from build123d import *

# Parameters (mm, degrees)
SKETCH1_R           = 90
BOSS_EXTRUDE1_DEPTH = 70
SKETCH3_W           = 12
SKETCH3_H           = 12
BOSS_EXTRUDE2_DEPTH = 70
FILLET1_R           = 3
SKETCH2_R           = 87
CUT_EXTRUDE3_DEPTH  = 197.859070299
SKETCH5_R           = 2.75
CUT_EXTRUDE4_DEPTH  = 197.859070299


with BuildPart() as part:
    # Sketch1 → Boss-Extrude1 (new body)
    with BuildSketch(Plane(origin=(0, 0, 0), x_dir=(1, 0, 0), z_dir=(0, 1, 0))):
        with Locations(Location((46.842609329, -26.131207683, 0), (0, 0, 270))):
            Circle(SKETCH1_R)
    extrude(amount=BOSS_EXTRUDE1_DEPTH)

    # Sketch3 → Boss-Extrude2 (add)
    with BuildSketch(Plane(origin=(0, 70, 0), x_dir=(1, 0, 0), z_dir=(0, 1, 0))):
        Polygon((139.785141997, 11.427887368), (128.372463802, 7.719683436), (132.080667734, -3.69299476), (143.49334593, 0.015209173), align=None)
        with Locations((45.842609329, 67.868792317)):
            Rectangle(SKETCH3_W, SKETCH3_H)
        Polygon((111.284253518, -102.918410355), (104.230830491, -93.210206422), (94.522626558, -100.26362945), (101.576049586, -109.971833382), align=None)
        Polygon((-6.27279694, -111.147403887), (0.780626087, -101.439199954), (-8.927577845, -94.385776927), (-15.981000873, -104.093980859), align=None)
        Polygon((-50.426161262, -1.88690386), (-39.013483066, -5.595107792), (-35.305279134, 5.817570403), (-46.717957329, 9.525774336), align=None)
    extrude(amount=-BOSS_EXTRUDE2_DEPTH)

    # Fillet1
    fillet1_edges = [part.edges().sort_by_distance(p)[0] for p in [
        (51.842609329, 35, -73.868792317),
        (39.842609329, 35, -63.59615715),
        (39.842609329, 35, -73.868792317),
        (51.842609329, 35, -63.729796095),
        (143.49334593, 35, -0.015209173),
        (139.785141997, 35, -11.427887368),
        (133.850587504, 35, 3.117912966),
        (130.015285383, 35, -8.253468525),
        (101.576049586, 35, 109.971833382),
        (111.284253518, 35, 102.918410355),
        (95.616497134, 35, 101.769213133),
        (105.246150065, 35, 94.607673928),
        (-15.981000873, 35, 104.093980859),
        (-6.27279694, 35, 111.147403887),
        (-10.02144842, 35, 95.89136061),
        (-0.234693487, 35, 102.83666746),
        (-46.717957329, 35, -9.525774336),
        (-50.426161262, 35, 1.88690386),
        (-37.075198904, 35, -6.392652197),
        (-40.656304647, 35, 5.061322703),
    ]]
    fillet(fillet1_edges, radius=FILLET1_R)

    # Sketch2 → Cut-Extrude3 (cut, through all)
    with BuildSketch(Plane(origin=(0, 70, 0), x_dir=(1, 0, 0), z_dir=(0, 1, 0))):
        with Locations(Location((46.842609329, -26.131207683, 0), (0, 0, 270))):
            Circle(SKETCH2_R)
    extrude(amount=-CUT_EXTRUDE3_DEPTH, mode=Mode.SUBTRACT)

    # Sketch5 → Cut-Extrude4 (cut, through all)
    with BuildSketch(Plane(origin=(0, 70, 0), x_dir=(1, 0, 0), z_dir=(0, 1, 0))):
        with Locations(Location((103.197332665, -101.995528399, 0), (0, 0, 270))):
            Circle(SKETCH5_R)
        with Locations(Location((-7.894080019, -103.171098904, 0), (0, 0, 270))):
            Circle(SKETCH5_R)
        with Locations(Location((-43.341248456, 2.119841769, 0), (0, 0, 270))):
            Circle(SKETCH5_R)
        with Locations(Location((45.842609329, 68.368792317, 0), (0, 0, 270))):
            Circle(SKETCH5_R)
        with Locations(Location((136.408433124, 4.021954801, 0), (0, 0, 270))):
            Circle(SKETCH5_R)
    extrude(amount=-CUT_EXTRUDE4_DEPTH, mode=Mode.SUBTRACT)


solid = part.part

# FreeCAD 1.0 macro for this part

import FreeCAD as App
import Part
import Sketcher
from FreeCAD import Vector
Q = App.Units.Quantity


def edges_at(feature, points):
    """Names of the edges that pass closest to the given points."""
    edges = feature.Shape.Edges
    near = lambda p: min(range(len(edges)), key=lambda i: edges[i].distToShape(Part.Vertex(*p))[0])
    return sorted({f"Edge{near(p) + 1}" for p in points})


def add_polygon(sketch, points):
    """Adds a closed chain of lines whose ends are joined by coincident constraints."""
    first, n = sketch.GeometryCount, len(points)
    for a, b in zip(points, points[1:] + points[:1]):
        sketch.addGeometry(Part.LineSegment(App.Vector(*a, 0), App.Vector(*b, 0)), False)
    for i in range(n):
        sketch.addConstraint(Sketcher.Constraint("Coincident", first + i, 2, first + (i + 1) % n, 1))

doc = App.newDocument("Part")
body = doc.addObject("PartDesign::Body", "Body")

# Sketch on XZ plane
sketch1 = doc.addObject("Sketcher::SketchObject", "Sketch")
body.addObject(sketch1)
sketch1.AttachmentSupport = (doc.XZ_Plane, [""])
sketch1.MapMode = "FlatFace"
sketch1.addGeometry(Part.Circle(Vector(47, 26, 0), Vector(0, 0, 1), 90), False)
sketch1.addConstraint([
    Sketcher.Constraint("Diameter", 0, Q("180 mm")),
    Sketcher.Constraint("DistanceX", -1, 1, 0, 3, Q("46.842609 mm")),
    Sketcher.Constraint("DistanceY", -1, 1, 0, 3, Q("26.131208 mm")),
])
pad1 = doc.addObject("PartDesign::Pad", "Pad")
body.addObject(pad1)
pad1.Profile = sketch1
pad1.Length = 70
pad1.Reversed = True

# Sketch on XZ plane
sketch2 = doc.addObject("Sketcher::SketchObject", "Sketch001")
body.addObject(sketch2)
sketch2.AttachmentSupport = (doc.XZ_Plane, [""])
sketch2.MapMode = "FlatFace"
sketch2.AttachmentOffset = App.Placement(Vector(0, 0, -70), App.Rotation())
add_polygon(sketch2, [(140, -11), (128, -8), (132, 4), (143, 0)])  # lines 0-3
add_polygon(sketch2, [(40, -74), (40, -62), (52, -62), (52, -74)])  # lines 4-7
add_polygon(sketch2, [(111, 103), (104, 93), (95, 100), (102, 110)])  # lines 8-11
add_polygon(sketch2, [(-6, 111), (1, 101), (-9, 94), (-16, 104)])  # lines 12-15
add_polygon(sketch2, [(-50, 2), (-39, 6), (-35, -6), (-47, -10)])  # lines 16-19
sketch2.addConstraint([
    Sketcher.Constraint("Vertical", 4),
    Sketcher.Constraint("Horizontal", 5),
    Sketcher.Constraint("Vertical", 6),
    Sketcher.Constraint("Horizontal", 7),
    Sketcher.Constraint("Perpendicular", 0, 1),
    Sketcher.Constraint("Perpendicular", 1, 2),
    Sketcher.Constraint("Perpendicular", 2, 3),
    Sketcher.Constraint("Perpendicular", 8, 9),
    Sketcher.Constraint("Perpendicular", 9, 10),
    Sketcher.Constraint("Perpendicular", 10, 11),
    Sketcher.Constraint("Perpendicular", 12, 13),
    Sketcher.Constraint("Perpendicular", 13, 14),
    Sketcher.Constraint("Perpendicular", 14, 15),
    Sketcher.Constraint("Perpendicular", 16, 17),
    Sketcher.Constraint("Perpendicular", 17, 18),
    Sketcher.Constraint("Perpendicular", 18, 19),
    Sketcher.Constraint("Equal", 7, 4),
    Sketcher.Constraint("Equal", 0, 1),
    Sketcher.Constraint("Equal", 3, 8),
    Sketcher.Constraint("Equal", 8, 9),
    Sketcher.Constraint("Equal", 11, 12),
    Sketcher.Constraint("Equal", 12, 13),
    Sketcher.Constraint("Equal", 15, 16),
    Sketcher.Constraint("Equal", 16, 17),
    Sketcher.Constraint("DistanceX", 5, 1, 5, 2, Q("12 mm")),
    Sketcher.Constraint("Angle", 0, Q("162 deg")),
    Sketcher.Constraint("Angle", 8, Q("-126 deg")),
    Sketcher.Constraint("Angle", 12, Q("-54 deg")),
    Sketcher.Constraint("Angle", 16, Q("18 deg")),
    Sketcher.Constraint("Distance", 0, Q("12 mm")),
    Sketcher.Constraint("DistanceX", 14, 2, -1, 1, Q("15.981001 mm")),
    Sketcher.Constraint("DistanceY", 5, 2, 8, 2, Q("155.078999 mm")),
    Sketcher.Constraint("DistanceX", 12, 2, 9, 2, Q("93.742 mm")),
    Sketcher.Constraint("DistanceY", -1, 1, 12, 2, Q("101.4392 mm")),
    Sketcher.Constraint("DistanceY", 4, 2, 16, 2, Q("67.4639 mm")),
    Sketcher.Constraint("DistanceX", 17, 2, 13, 2, Q("26.377701 mm")),
    Sketcher.Constraint("DistanceY", 2, 2, -1, 1, Q("0.015209 mm")),
    Sketcher.Constraint("DistanceX", -1, 1, 3, 2, Q("139.785142 mm")),
    Sketcher.Constraint("DistanceX", -1, 1, 4, 2, Q("39.842609 mm")),
    Sketcher.Constraint("DistanceY", -1, 1, 9, 2, Q("100.263629 mm")),
])
pad2 = doc.addObject("PartDesign::Pad", "Pad001")
body.addObject(pad2)
pad2.Profile = sketch2
pad2.Length = 70
doc.recompute()

fillet = doc.addObject("PartDesign::Fillet", "Fillet")
body.addObject(fillet)
fillet.Base = (pad2, edges_at(pad2, [
    (51.843, 35, -73.869),
    (39.843, 35, -63.596),
    (39.843, 35, -73.869),
    (51.843, 35, -63.73),
    (143.493, 35, -0.015),
    (139.785, 35, -11.428),
    (133.851, 35, 3.118),
    (130.015, 35, -8.253),
    (101.576, 35, 109.972),
    (111.284, 35, 102.918),
    (95.616, 35, 101.769),
    (105.246, 35, 94.608),
    (-15.981, 35, 104.094),
    (-6.273, 35, 111.147),
    (-10.021, 35, 95.891),
    (-0.235, 35, 102.837),
    (-46.718, 35, -9.526),
    (-50.426, 35, 1.887),
    (-37.075, 35, -6.393),
    (-40.656, 35, 5.061),
]))
fillet.Radius = 3

# Sketch on XZ plane
sketch3 = doc.addObject("Sketcher::SketchObject", "Sketch002")
body.addObject(sketch3)
sketch3.AttachmentSupport = (doc.XZ_Plane, [""])
sketch3.MapMode = "FlatFace"
sketch3.AttachmentOffset = App.Placement(Vector(0, 0, -70), App.Rotation())
sketch3.addGeometry(Part.Circle(Vector(47, 26, 0), Vector(0, 0, 1), 87), False)
sketch3.addConstraint([
    Sketcher.Constraint("Diameter", 0, Q("174 mm")),
    Sketcher.Constraint("DistanceX", -1, 1, 0, 3, Q("46.842609 mm")),
    Sketcher.Constraint("DistanceY", -1, 1, 0, 3, Q("26.131208 mm")),
])
pocket1 = doc.addObject("PartDesign::Pocket", "Pocket")
body.addObject(pocket1)
pocket1.Profile = sketch3
pocket1.Type = "ThroughAll"
pocket1.Reversed = True

# Sketch on XZ plane
sketch4 = doc.addObject("Sketcher::SketchObject", "Sketch003")
body.addObject(sketch4)
sketch4.AttachmentSupport = (doc.XZ_Plane, [""])
sketch4.MapMode = "FlatFace"
sketch4.AttachmentOffset = App.Placement(Vector(0, 0, -70), App.Rotation())
sketch4.addGeometry([
    Part.Circle(Vector(103.2, 102, 0), Vector(0, 0, 1), 2.8),  # 0
    Part.Circle(Vector(-7.9, 103.2, 0), Vector(0, 0, 1), 2.8),  # 1
    Part.Circle(Vector(-43.3, -2.1, 0), Vector(0, 0, 1), 2.8),  # 2
    Part.Circle(Vector(45.8, -68.4, 0), Vector(0, 0, 1), 2.8),  # 3
    Part.Circle(Vector(136.4, -4, 0), Vector(0, 0, 1), 2.8),  # 4
], False)
sketch4.addConstraint([
    Sketcher.Constraint("Equal", 0, 1),
    Sketcher.Constraint("Equal", 1, 2),
    Sketcher.Constraint("Equal", 2, 3),
    Sketcher.Constraint("Equal", 3, 4),
    Sketcher.Constraint("Diameter", 0, Q("5.5 mm")),
    Sketcher.Constraint("DistanceY", -1, 1, 1, 3, Q("103.171099 mm")),
    Sketcher.Constraint("DistanceX", 0, 3, 4, 3, Q("33.2111 mm")),
    Sketcher.Constraint("DistanceY", -1, 1, 0, 3, Q("101.995528 mm")),
    Sketcher.Constraint("DistanceX", 1, 3, -1, 1, Q("7.89408 mm")),
    Sketcher.Constraint("DistanceX", 2, 3, -1, 1, Q("43.341248 mm")),
    Sketcher.Constraint("DistanceY", 2, 3, -1, 1, Q("2.119842 mm")),
    Sketcher.Constraint("DistanceX", -1, 1, 3, 3, Q("45.842609 mm")),
    Sketcher.Constraint("DistanceX", 2, 3, 0, 3, Q("146.538581 mm")),
    Sketcher.Constraint("DistanceY", 3, 3, 2, 3, Q("66.248951 mm")),
    Sketcher.Constraint("DistanceY", 4, 3, -1, 1, Q("4.021955 mm")),
])
pocket2 = doc.addObject("PartDesign::Pocket", "Pocket001")
body.addObject(pocket2)
pocket2.Profile = sketch4
pocket2.Type = "ThroughAll"
pocket2.Reversed = True

doc.recompute()
